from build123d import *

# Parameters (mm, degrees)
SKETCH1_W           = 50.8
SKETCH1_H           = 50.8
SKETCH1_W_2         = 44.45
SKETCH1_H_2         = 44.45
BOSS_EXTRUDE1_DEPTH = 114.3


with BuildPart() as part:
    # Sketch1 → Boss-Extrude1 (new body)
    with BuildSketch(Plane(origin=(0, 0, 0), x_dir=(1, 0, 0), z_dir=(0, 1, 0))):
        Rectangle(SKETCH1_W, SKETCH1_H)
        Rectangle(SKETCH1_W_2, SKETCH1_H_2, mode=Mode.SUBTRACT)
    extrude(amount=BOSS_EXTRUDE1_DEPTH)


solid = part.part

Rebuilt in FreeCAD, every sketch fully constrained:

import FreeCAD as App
import Part
import Sketcher
Q = App.Units.Quantity

doc = App.newDocument("Part")
params = doc.addObject("Spreadsheet::Sheet", "Params")
for row, (alias, value) in enumerate([
    ("sketch1_width", "2 in"),
    ("sketch1_width2", "1.75 in"),
    ("pad1_length", "4.5 in"),
], start=1):
    params.set(f"A{row}", alias)
    params.set(f"B{row}", "=" + value)
    params.setAlias(f"B{row}", alias)

body = doc.addObject("PartDesign::Body", "Body")

sketch1 = body.newObject("Sketcher::SketchObject", "Sketch")
sketch1.AttachmentSupport = (doc.getObject("XZ_Plane"), [""])
sketch1.MapMode = "FlatFace"
sketch1.addGeometry([
    Part.LineSegment(App.Vector(-25, -25, 0), App.Vector(-25, 25, 0)),
    Part.LineSegment(App.Vector(-25, 25, 0), App.Vector(25, 25, 0)),
    Part.LineSegment(App.Vector(25, 25, 0), App.Vector(25, -25, 0)),
    Part.LineSegment(App.Vector(25, -25, 0), App.Vector(-25, -25, 0)),
    Part.LineSegment(App.Vector(22, 22, 0), App.Vector(-22, 22, 0)),
    Part.LineSegment(App.Vector(-22, 22, 0), App.Vector(-22, -22, 0)),
    Part.LineSegment(App.Vector(-22, -22, 0), App.Vector(22, -22, 0)),
    Part.LineSegment(App.Vector(22, -22, 0), App.Vector(22, 22, 0)),
], False)
sketch1.addConstraint([
    Sketcher.Constraint("Coincident", 0, 2, 1, 1),
    Sketcher.Constraint("Coincident", 1, 2, 2, 1),
    Sketcher.Constraint("Coincident", 2, 2, 3, 1),
    Sketcher.Constraint("Coincident", 3, 2, 0, 1),
    Sketcher.Constraint("Coincident", 4, 2, 5, 1),
    Sketcher.Constraint("Coincident", 5, 2, 6, 1),
    Sketcher.Constraint("Coincident", 6, 2, 7, 1),
    Sketcher.Constraint("Coincident", 7, 2, 4, 1),
    Sketcher.Constraint("Vertical", 0),
    Sketcher.Constraint("Horizontal", 1),
    Sketcher.Constraint("Vertical", 2),
    Sketcher.Constraint("Horizontal", 3),
    Sketcher.Constraint("Horizontal", 4),
    Sketcher.Constraint("Vertical", 5),
    Sketcher.Constraint("Horizontal", 6),
    Sketcher.Constraint("Vertical", 7),
    Sketcher.Constraint("Symmetric", 0, 2, 2, 2, -1, 1),
    Sketcher.Constraint("Symmetric", 4, 2, 6, 2, -1, 1),
    Sketcher.Constraint("Equal", 3, 0),
    Sketcher.Constraint("Equal", 6, 5),
    Sketcher.Constraint("DistanceX", 1, 1, 1, 2, Q("2 in")),
    Sketcher.Constraint("DistanceX", 4, 2, 4, 1, Q("1.75 in")),
])
sketch1.setExpression("Constraints[20]", "Params.sketch1_width")
sketch1.setExpression("Constraints[21]", "Params.sketch1_width2")
pad1 = body.newObject("PartDesign::Pad", "Pad")
pad1.Profile = sketch1
pad1.setExpression("Length", "Params.pad1_length")
pad1.Reversed = True

doc.recompute()
